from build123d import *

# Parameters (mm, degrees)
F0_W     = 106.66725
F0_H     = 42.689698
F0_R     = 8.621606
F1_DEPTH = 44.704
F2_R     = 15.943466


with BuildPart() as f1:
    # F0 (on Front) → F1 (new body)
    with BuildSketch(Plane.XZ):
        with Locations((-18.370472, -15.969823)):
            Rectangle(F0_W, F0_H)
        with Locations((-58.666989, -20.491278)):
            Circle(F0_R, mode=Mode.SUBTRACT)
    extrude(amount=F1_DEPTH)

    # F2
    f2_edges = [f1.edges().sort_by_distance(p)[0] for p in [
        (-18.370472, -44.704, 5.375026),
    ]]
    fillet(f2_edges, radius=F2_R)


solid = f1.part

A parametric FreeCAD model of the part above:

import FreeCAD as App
import Part
import Sketcher
Q = App.Units.Quantity


def edges_at(feature, points):
    """Names of the edges that pass closest to the given points."""
    edges = feature.Shape.Edges
    near = lambda p: min(range(len(edges)), key=lambda i: edges[i].distToShape(Part.Vertex(*p))[0])
    return sorted({f"Edge{near(p) + 1}" for p in points})


def add_polygon(sketch, points):
    """Adds a closed chain of lines whose ends are joined by coincident constraints."""
    first, n = sketch.GeometryCount, len(points)
    for a, b in zip(points, points[1:] + points[:1]):
        sketch.addGeometry(Part.LineSegment(App.Vector(*a, 0), App.Vector(*b, 0)), False)
    for i in range(n):
        sketch.addConstraint(Sketcher.Constraint("Coincident", first + i, 2, first + (i + 1) % n, 1))

doc = App.newDocument("Part")
body = doc.addObject("PartDesign::Body", "Body")

# Sketch on XZ plane
sketch1 = body.newObject("Sketcher::SketchObject", "Sketch")
sketch1.AttachmentSupport = (doc.getObject("XZ_Plane"), [""])
sketch1.MapMode = "FlatFace"
add_polygon(sketch1, [(-71.704097, 5.375026), (-71.704097, -37.314672), (34.963153, -37.314672), (34.963153, 5.375026)])  # lines 0-3
sketch1.addGeometry(Part.Circle(App.Vector(-58.666989, -20.491278, 0), App.Vector(0, 0, 1), 8.621606), False)  # 4
sketch1.addConstraint([
    Sketcher.Constraint("Vertical", 0),
    Sketcher.Constraint("Horizontal", 1),
    Sketcher.Constraint("Vertical", 2),
    Sketcher.Constraint("Horizontal", 3),
    Sketcher.Constraint("Diameter", 4, Q("17.243212 mm")),
    Sketcher.Constraint("DistanceX", 1, 1, 1, 2, Q("106.66725 mm")),
    Sketcher.Constraint("DistanceY", 0, 2, 0, 1, Q("42.689698 mm")),
    Sketcher.Constraint("DistanceX", 4, 3, -1, 1, Q("58.666989 mm")),
    Sketcher.Constraint("DistanceY", 4, 3, -1, 1, Q("20.491278 mm")),
    Sketcher.Constraint("DistanceX", 0, 2, 4, 3, Q("13.037108 mm")),
    Sketcher.Constraint("DistanceY", 0, 2, -1, 1, Q("37.314672 mm")),
])
pad1 = body.newObject("PartDesign::Pad", "Pad")
pad1.Profile = sketch1
pad1.Length = Q("1.76 in")
doc.recompute()

fillet = body.newObject("PartDesign::Fillet", "Fillet")
fillet.Base = (pad1, edges_at(pad1, [(-18.37, -44.704, 5.375)]))
fillet.Radius = 15.943466

doc.recompute()
